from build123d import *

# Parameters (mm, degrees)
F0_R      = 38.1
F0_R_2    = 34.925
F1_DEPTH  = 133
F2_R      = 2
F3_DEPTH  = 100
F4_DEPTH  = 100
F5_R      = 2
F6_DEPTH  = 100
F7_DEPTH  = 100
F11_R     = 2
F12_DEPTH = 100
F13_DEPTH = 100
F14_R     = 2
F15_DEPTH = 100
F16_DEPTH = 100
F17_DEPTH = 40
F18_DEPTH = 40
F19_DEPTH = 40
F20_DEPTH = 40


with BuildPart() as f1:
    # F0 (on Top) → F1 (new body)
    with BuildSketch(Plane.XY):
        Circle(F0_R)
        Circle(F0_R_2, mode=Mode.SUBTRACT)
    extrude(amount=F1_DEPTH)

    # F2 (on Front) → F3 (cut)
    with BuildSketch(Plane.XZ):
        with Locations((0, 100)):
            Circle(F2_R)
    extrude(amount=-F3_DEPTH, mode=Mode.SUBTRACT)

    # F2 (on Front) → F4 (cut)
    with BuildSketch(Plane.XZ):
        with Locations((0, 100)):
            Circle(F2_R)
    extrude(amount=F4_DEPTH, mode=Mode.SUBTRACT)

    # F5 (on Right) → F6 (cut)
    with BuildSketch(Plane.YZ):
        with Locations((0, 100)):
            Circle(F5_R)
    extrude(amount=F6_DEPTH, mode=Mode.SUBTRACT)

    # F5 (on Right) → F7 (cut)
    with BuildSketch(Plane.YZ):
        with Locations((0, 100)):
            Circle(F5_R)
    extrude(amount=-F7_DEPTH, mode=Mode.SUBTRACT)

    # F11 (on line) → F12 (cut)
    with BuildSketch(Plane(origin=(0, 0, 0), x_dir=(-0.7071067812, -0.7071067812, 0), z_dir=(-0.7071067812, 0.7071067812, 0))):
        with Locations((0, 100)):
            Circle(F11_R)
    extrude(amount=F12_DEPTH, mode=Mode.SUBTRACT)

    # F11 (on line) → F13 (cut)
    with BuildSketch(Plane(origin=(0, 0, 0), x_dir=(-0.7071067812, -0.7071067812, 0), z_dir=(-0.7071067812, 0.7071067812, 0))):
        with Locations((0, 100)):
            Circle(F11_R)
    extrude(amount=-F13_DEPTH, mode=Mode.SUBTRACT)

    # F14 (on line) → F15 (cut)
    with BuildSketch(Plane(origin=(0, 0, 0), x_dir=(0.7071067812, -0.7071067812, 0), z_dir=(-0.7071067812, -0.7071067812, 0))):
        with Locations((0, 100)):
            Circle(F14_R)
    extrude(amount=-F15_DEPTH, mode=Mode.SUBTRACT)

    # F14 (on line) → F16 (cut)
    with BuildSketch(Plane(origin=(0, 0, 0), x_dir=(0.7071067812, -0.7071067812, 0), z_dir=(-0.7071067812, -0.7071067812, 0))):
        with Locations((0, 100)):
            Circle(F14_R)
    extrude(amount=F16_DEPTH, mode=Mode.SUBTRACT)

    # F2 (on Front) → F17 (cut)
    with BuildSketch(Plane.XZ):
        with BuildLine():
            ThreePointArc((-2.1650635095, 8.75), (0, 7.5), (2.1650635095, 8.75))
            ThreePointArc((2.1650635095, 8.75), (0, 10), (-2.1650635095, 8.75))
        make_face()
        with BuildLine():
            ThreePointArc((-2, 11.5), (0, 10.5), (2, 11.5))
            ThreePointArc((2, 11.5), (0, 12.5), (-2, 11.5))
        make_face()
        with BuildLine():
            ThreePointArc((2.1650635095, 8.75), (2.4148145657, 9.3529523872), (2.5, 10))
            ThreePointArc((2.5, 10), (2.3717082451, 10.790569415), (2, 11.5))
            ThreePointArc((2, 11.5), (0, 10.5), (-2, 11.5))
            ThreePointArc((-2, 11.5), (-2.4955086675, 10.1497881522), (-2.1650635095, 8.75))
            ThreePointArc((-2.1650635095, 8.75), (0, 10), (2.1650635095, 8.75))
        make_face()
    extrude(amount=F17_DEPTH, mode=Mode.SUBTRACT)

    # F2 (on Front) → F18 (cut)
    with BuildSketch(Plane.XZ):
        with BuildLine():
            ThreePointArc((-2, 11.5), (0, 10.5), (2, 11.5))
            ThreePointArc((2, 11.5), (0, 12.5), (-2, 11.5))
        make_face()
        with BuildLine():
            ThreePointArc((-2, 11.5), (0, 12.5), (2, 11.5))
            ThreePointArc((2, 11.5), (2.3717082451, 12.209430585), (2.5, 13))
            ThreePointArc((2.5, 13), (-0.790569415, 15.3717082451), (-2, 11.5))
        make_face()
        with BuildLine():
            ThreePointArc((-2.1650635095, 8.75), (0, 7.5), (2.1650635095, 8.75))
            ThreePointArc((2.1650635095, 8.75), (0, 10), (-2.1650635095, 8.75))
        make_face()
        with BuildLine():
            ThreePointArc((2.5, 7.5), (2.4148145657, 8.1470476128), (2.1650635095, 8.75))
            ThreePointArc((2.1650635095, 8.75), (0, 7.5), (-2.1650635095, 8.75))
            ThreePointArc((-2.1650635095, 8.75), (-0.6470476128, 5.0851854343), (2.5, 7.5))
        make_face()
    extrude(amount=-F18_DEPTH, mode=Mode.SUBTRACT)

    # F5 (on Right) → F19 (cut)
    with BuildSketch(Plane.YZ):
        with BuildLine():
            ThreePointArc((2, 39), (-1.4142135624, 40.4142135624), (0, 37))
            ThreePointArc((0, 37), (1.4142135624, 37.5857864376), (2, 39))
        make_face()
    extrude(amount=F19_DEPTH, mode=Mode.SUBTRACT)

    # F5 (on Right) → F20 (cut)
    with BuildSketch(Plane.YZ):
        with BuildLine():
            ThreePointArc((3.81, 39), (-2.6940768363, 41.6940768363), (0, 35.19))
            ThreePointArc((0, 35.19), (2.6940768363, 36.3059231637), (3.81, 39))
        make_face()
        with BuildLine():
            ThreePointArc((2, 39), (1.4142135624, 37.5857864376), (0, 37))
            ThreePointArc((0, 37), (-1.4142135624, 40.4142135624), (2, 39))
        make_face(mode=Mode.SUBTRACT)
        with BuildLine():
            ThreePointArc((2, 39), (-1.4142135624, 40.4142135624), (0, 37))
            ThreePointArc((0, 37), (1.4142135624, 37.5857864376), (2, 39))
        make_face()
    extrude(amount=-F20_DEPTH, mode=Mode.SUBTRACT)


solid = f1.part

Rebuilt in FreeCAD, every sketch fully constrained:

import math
import FreeCAD as App
import Part
import Sketcher
from FreeCAD import Vector
Q = App.Units.Quantity

doc = App.newDocument("Part")
params = doc.addObject("Spreadsheet::Sheet", "Params")
for row, (alias, value) in enumerate([
    ("sketch1_diameter", "76.2 mm"),
    ("sketch1_diameter2", "69.85 mm"),
    ("pad1_length", "133 mm"),
    ("sketch2_diameter", "4 mm"),
    ("pocket1_length", "100 mm"),
    ("sketch3_diameter", "4 mm"),
    ("pocket2_length", "100 mm"),
    ("sketch4_diameter", "4 mm"),
    ("pocket3_length", "100 mm"),
    ("sketch5_diameter", "4 mm"),
    ("pocket4_length", "100 mm"),
    ("sketch6_diameter", "4 mm"),
    ("pocket5_length", "100 mm"),
    ("sketch7_diameter", "4 mm"),
    ("pocket6_length", "100 mm"),
    ("sketch8_diameter", "4 mm"),
    ("pocket7_length", "100 mm"),
    ("sketch9_diameter", "4 mm"),
    ("pocket8_length", "100 mm"),
    ("sketch10_radius", "2.5 mm"),
    ("pocket9_length", "40 mm"),
    ("sketch11_radius", "2.5 mm"),
    ("pocket10_length", "40 mm"),
    ("sketch12_radius", "2 mm"),
    ("pocket11_length", "40 mm"),
    ("sketch13_radius", "3.81 mm"),
    ("pocket12_length", "40 mm"),
], start=1):
    params.set(f"A{row}", alias)
    params.set(f"B{row}", "=" + value)
    params.setAlias(f"B{row}", alias)

body = doc.addObject("PartDesign::Body", "Body")

sketch1 = doc.addObject("Sketcher::SketchObject", "Sketch")
body.addObject(sketch1)
sketch1.AttachmentSupport = (doc.XY_Plane, [""])
sketch1.MapMode = "FlatFace"
sketch1.addGeometry(Part.Circle(Vector(0, 0, 0), Vector(0, 0, 1), 38), False)
sketch1.addGeometry(Part.Circle(Vector(0, 0, 0), Vector(0, 0, 1), 35), False)
sketch1.addConstraint(Sketcher.Constraint("Coincident", 0, 3, -1, 1))
sketch1.addConstraint(Sketcher.Constraint("Coincident", 1, 3, -1, 1))
sketch1.addConstraint(Sketcher.Constraint("Diameter", 0, Q("76.2 mm")))
sketch1.addConstraint(Sketcher.Constraint("Diameter", 1, Q("69.85 mm")))
sketch1.setExpression("Constraints[2]", "Params.sketch1_diameter")
sketch1.setExpression("Constraints[3]", "Params.sketch1_diameter2")
pad1 = doc.addObject("PartDesign::Pad", "Pad")
body.addObject(pad1)
pad1.Profile = sketch1
pad1.setExpression("Length", "Params.pad1_length")

sketch2 = doc.addObject("Sketcher::SketchObject", "Sketch001")
body.addObject(sketch2)
sketch2.AttachmentSupport = (doc.XZ_Plane, [""])
sketch2.MapMode = "FlatFace"
sketch2.addGeometry(Part.Circle(Vector(0, 100, 0), Vector(0, 0, 1), 2), False)
sketch2.addConstraint(Sketcher.Constraint("PointOnObject", 0, 3, -2))
sketch2.addConstraint(Sketcher.Constraint("Diameter", 0, Q("4 mm")))
sketch2.addConstraint(Sketcher.Constraint("DistanceY", -1, 1, 0, 3, Q("100 mm")))
sketch2.setExpression("Constraints[1]", "Params.sketch2_diameter")
pocket1 = doc.addObject("PartDesign::Pocket", "Pocket")
body.addObject(pocket1)
pocket1.Profile = sketch2
pocket1.setExpression("Length", "Params.pocket1_length")

sketch3 = doc.addObject("Sketcher::SketchObject", "Sketch002")
body.addObject(sketch3)
sketch3.AttachmentSupport = (doc.XZ_Plane, [""])
sketch3.MapMode = "FlatFace"
sketch3.addGeometry(Part.Circle(Vector(0, 100, 0), Vector(0, 0, 1), 2), False)
sketch3.addConstraint(Sketcher.Constraint("PointOnObject", 0, 3, -2))
sketch3.addConstraint(Sketcher.Constraint("Diameter", 0, Q("4 mm")))
sketch3.addConstraint(Sketcher.Constraint("DistanceY", -1, 1, 0, 3, Q("100 mm")))
sketch3.setExpression("Constraints[1]", "Params.sketch3_diameter")
pocket2 = doc.addObject("PartDesign::Pocket", "Pocket001")
body.addObject(pocket2)
pocket2.Profile = sketch3
pocket2.setExpression("Length", "Params.pocket2_length")
pocket2.Reversed = True

sketch4 = doc.addObject("Sketcher::SketchObject", "Sketch003")
body.addObject(sketch4)
sketch4.AttachmentSupport = (doc.YZ_Plane, [""])
sketch4.MapMode = "FlatFace"
sketch4.addGeometry(Part.Circle(Vector(0, 100, 0), Vector(0, 0, 1), 2), False)
sketch4.addConstraint(Sketcher.Constraint("PointOnObject", 0, 3, -2))
sketch4.addConstraint(Sketcher.Constraint("Diameter", 0, Q("4 mm")))
sketch4.addConstraint(Sketcher.Constraint("DistanceY", -1, 1, 0, 3, Q("100 mm")))
sketch4.setExpression("Constraints[1]", "Params.sketch4_diameter")
pocket3 = doc.addObject("PartDesign::Pocket", "Pocket002")
body.addObject(pocket3)
pocket3.Profile = sketch4
pocket3.setExpression("Length", "Params.pocket3_length")
pocket3.Reversed = True

sketch5 = doc.addObject("Sketcher::SketchObject", "Sketch004")
body.addObject(sketch5)
sketch5.AttachmentSupport = (doc.YZ_Plane, [""])
sketch5.MapMode = "FlatFace"
sketch5.addGeometry(Part.Circle(Vector(0, 100, 0), Vector(0, 0, 1), 2), False)
sketch5.addConstraint(Sketcher.Constraint("PointOnObject", 0, 3, -2))
sketch5.addConstraint(Sketcher.Constraint("Diameter", 0, Q("4 mm")))
sketch5.addConstraint(Sketcher.Constraint("DistanceY", -1, 1, 0, 3, Q("100 mm")))
sketch5.setExpression("Constraints[1]", "Params.sketch5_diameter")
pocket4 = doc.addObject("PartDesign::Pocket", "Pocket003")
body.addObject(pocket4)
pocket4.Profile = sketch5
pocket4.setExpression("Length", "Params.pocket4_length")

sketch6 = doc.addObject("Sketcher::SketchObject", "Sketch005")
body.addObject(sketch6)
sketch6.Placement = App.Placement(Vector(0, 0, 0), App.Rotation(Vector(-0.707106781, -0.707106781, 0), Vector(0, 0, 0.999999999), Vector(-0.707106781, 0.707106781, 0), "ZXY"))
sketch6.addGeometry(Part.Circle(Vector(0, 100, 0), Vector(0, 0, 1), 2), False)
sketch6.addConstraint(Sketcher.Constraint("PointOnObject", 0, 3, -2))
sketch6.addConstraint(Sketcher.Constraint("Diameter", 0, Q("4 mm")))
sketch6.addConstraint(Sketcher.Constraint("DistanceY", -1, 1, 0, 3, Q("100 mm")))
sketch6.setExpression("Constraints[1]", "Params.sketch6_diameter")
pocket5 = doc.addObject("PartDesign::Pocket", "Pocket004")
body.addObject(pocket5)
pocket5.Profile = sketch6
pocket5.setExpression("Length", "Params.pocket5_length")
pocket5.Reversed = True

sketch7 = doc.addObject("Sketcher::SketchObject", "Sketch006")
body.addObject(sketch7)
sketch7.Placement = App.Placement(Vector(0, 0, 0), App.Rotation(Vector(-0.707106781, -0.707106781, 0), Vector(0, 0, 0.999999999), Vector(-0.707106781, 0.707106781, 0), "ZXY"))
sketch7.addGeometry(Part.Circle(Vector(0, 100, 0), Vector(0, 0, 1), 2), False)
sketch7.addConstraint(Sketcher.Constraint("PointOnObject", 0, 3, -2))
sketch7.addConstraint(Sketcher.Constraint("Diameter", 0, Q("4 mm")))
sketch7.addConstraint(Sketcher.Constraint("DistanceY", -1, 1, 0, 3, Q("100 mm")))
sketch7.setExpression("Constraints[1]", "Params.sketch7_diameter")
pocket6 = doc.addObject("PartDesign::Pocket", "Pocket005")
body.addObject(pocket6)
pocket6.Profile = sketch7
pocket6.setExpression("Length", "Params.pocket6_length")

sketch8 = doc.addObject("Sketcher::SketchObject", "Sketch007")
body.addObject(sketch8)
sketch8.Placement = App.Placement(Vector(0, 0, 0), App.Rotation(Vector(0.707106781, -0.707106781, 0), Vector(0, 0, 0.999999999), Vector(-0.707106781, -0.707106781, 0), "ZXY"))
sketch8.addGeometry(Part.Circle(Vector(0, 100, 0), Vector(0, 0, 1), 2), False)
sketch8.addConstraint(Sketcher.Constraint("PointOnObject", 0, 3, -2))
sketch8.addConstraint(Sketcher.Constraint("Diameter", 0, Q("4 mm")))
sketch8.addConstraint(Sketcher.Constraint("DistanceY", -1, 1, 0, 3, Q("100 mm")))
sketch8.setExpression("Constraints[1]", "Params.sketch8_diameter")
pocket7 = doc.addObject("PartDesign::Pocket", "Pocket006")
body.addObject(pocket7)
pocket7.Profile = sketch8
pocket7.setExpression("Length", "Params.pocket7_length")

sketch9 = doc.addObject("Sketcher::SketchObject", "Sketch008")
body.addObject(sketch9)
sketch9.Placement = App.Placement(Vector(0, 0, 0), App.Rotation(Vector(0.707106781, -0.707106781, 0), Vector(0, 0, 0.999999999), Vector(-0.707106781, -0.707106781, 0), "ZXY"))
sketch9.addGeometry(Part.Circle(Vector(0, 100, 0), Vector(0, 0, 1), 2), False)
sketch9.addConstraint(Sketcher.Constraint("PointOnObject", 0, 3, -2))
sketch9.addConstraint(Sketcher.Constraint("Diameter", 0, Q("4 mm")))
sketch9.addConstraint(Sketcher.Constraint("DistanceY", -1, 1, 0, 3, Q("100 mm")))
sketch9.setExpression("Constraints[1]", "Params.sketch9_diameter")
pocket8 = doc.addObject("PartDesign::Pocket", "Pocket007")
body.addObject(pocket8)
pocket8.Profile = sketch9
pocket8.setExpression("Length", "Params.pocket8_length")
pocket8.Reversed = True

sketch10 = doc.addObject("Sketcher::SketchObject", "Sketch009")
body.addObject(sketch10)
sketch10.AttachmentSupport = (doc.XZ_Plane, [""])
sketch10.MapMode = "FlatFace"
sketch10.addGeometry(Part.ArcOfCircle(Part.Circle(Vector(0, 10, 0), Vector(0, 0, 1), 2.5), math.radians(143), math.radians(210)), False)
sketch10.addGeometry(Part.ArcOfCircle(Part.Circle(Vector(0, 10, 0), Vector(0, 0, 1), 2.5), math.radians(-150), math.radians(-30)), False)
sketch10.addGeometry(Part.ArcOfCircle(Part.Circle(Vector(0, 10, 0), Vector(0, 0, 1), 2.5), math.radians(-30), math.radians(0)), False)
sketch10.addGeometry(Part.ArcOfCircle(Part.Circle(Vector(0, 10, 0), Vector(0, 0, 1), 2.5), math.radians(0), math.radians(37)), False)
sketch10.addGeometry(Part.ArcOfCircle(Part.Circle(Vector(0, 10, 0), Vector(0, 0, 1), 2.5), math.radians(37), math.radians(143)), False)
sketch10.addConstraint(Sketcher.Constraint("Tangent", 0, 2, 1, 1))
sketch10.addConstraint(Sketcher.Constraint("Tangent", 1, 2, 2, 1))
sketch10.addConstraint(Sketcher.Constraint("Tangent", 2, 2, 3, 1))
sketch10.addConstraint(Sketcher.Constraint("Tangent", 3, 2, 4, 1))
sketch10.addConstraint(Sketcher.Constraint("Tangent", 4, 2, 0, 1))
sketch10.addConstraint(Sketcher.Constraint("Coincident", 2, 3, 0, 3))
sketch10.addConstraint(Sketcher.Constraint("Symmetric", 0, 2, 1, 2, -2))
sketch10.addConstraint(Sketcher.Constraint("Horizontal", 4, 3, 2, 2))
sketch10.addConstraint(Sketcher.Constraint("Horizontal", 3, 2, 4, 2))
sketch10.addConstraint(Sketcher.Constraint("Radius", 0, Q("2.5 mm")))
sketch10.addConstraint(Sketcher.Constraint("DistanceY", -1, 1, 0, 3, Q("10 mm")))
sketch10.addConstraint(Sketcher.Constraint("DistanceX", -1, 1, 3, 2, Q("2 mm")))
sketch10.addConstraint(Sketcher.Constraint("DistanceY", -1, 1, 0, 2, Q("8.75 mm")))
sketch10.setExpression("Constraints[9]", "Params.sketch10_radius")
pocket9 = doc.addObject("PartDesign::Pocket", "Pocket008")
body.addObject(pocket9)
pocket9.Profile = sketch10
pocket9.setExpression("Length", "Params.pocket9_length")
pocket9.Reversed = True

sketch11 = doc.addObject("Sketcher::SketchObject", "Sketch010")
body.addObject(sketch11)
sketch11.AttachmentSupport = (doc.XZ_Plane, [""])
sketch11.MapMode = "FlatFace"
sketch11.addGeometry(Part.ArcOfCircle(Part.Circle(Vector(0, 13, 0), Vector(0, 0, 1), 2.5), math.radians(-143), math.radians(-37)), False)
sketch11.addGeometry(Part.ArcOfCircle(Part.Circle(Vector(0, 13, 0), Vector(0, 0, 1), 2.5), math.radians(-37), math.radians(0)), False)
sketch11.addGeometry(Part.ArcOfCircle(Part.Circle(Vector(0, 13, 0), Vector(0, 0, 1), 2.5), math.radians(0), math.radians(217)), False)
sketch11.addGeometry(Part.ArcOfCircle(Part.Circle(Vector(0, 7.5, 0), Vector(0, 0, 1), 2.5), math.radians(30), math.radians(150)), False)
sketch11.addGeometry(Part.ArcOfCircle(Part.Circle(Vector(0, 7.5, 0), Vector(0, 0, 1), 2.5), math.radians(150), math.radians(360)), False)
sketch11.addGeometry(Part.ArcOfCircle(Part.Circle(Vector(0, 7.5, 0), Vector(0, 0, 1), 2.5), math.radians(0), math.radians(30)), False)
sketch11.addConstraint(Sketcher.Constraint("Tangent", 0, 2, 1, 1))
sketch11.addConstraint(Sketcher.Constraint("Tangent", 1, 2, 2, 1))
sketch11.addConstraint(Sketcher.Constraint("Tangent", 2, 2, 0, 1))
sketch11.addConstraint(Sketcher.Constraint("Tangent", 3, 2, 4, 1))
sketch11.addConstraint(Sketcher.Constraint("Tangent", 4, 2, 5, 1))
sketch11.addConstraint(Sketcher.Constraint("Tangent", 5, 2, 3, 1))
sketch11.addConstraint(Sketcher.Constraint("Equal", 2, 3))
sketch11.addConstraint(Sketcher.Constraint("Symmetric", 0, 2, 2, 2, -2))
sketch11.addConstraint(Sketcher.Constraint("Symmetric", 3, 2, 5, 2, -2))
sketch11.addConstraint(Sketcher.Constraint("Horizontal", 2, 3, 1, 2))
sketch11.addConstraint(Sketcher.Constraint("Horizontal", 5, 3, 4, 2))
sketch11.addConstraint(Sketcher.Constraint("Radius", 0, Q("2.5 mm")))
sketch11.addConstraint(Sketcher.Constraint("DistanceY", -1, 1, 0, 3, Q("13 mm")))
sketch11.addConstraint(Sketcher.Constraint("DistanceX", -1, 1, 0, 2, Q("2 mm")))
sketch11.addConstraint(Sketcher.Constraint("DistanceY", 3, 3, 0, 2, Q("4 mm")))
sketch11.addConstraint(Sketcher.Constraint("DistanceY", -1, 1, 3, 2, Q("8.75 mm")))
sketch11.setExpression("Constraints[11]", "Params.sketch11_radius")
pocket10 = doc.addObject("PartDesign::Pocket", "Pocket009")
body.addObject(pocket10)
pocket10.Profile = sketch11
pocket10.setExpression("Length", "Params.pocket10_length")

sketch12 = doc.addObject("Sketcher::SketchObject", "Sketch011")
body.addObject(sketch12)
sketch12.AttachmentSupport = (doc.YZ_Plane, [""])
sketch12.MapMode = "FlatFace"
sketch12.addGeometry(Part.ArcOfCircle(Part.Circle(Vector(0, 39, 0), Vector(0, 0, 1), 2), math.radians(0), math.radians(270)), False)
sketch12.addGeometry(Part.ArcOfCircle(Part.Circle(Vector(0, 39, 0), Vector(0, 0, 1), 2), math.radians(-90), math.radians(0)), False)
sketch12.addConstraint(Sketcher.Constraint("Tangent", 0, 1, 1, 2))
sketch12.addConstraint(Sketcher.Constraint("Coincident", 1, 1, 0, 2))
sketch12.addConstraint(Sketcher.Constraint("PointOnObject", 0, 3, -2))
sketch12.addConstraint(Sketcher.Constraint("PointOnObject", 1, 1, -2))
sketch12.addConstraint(Sketcher.Constraint("Horizontal", 1, 3, 0, 1))
sketch12.addConstraint(Sketcher.Constraint("Radius", 0, Q("2 mm")))
sketch12.addConstraint(Sketcher.Constraint("DistanceY", -1, 1, 0, 3, Q("39 mm")))
sketch12.setExpression("Constraints[5]", "Params.sketch12_radius")
pocket11 = doc.addObject("PartDesign::Pocket", "Pocket010")
body.addObject(pocket11)
pocket11.Profile = sketch12
pocket11.setExpression("Length", "Params.pocket11_length")
pocket11.Reversed = True

sketch13 = doc.addObject("Sketcher::SketchObject", "Sketch012")
body.addObject(sketch13)
sketch13.AttachmentSupport = (doc.YZ_Plane, [""])
sketch13.MapMode = "FlatFace"
sketch13.addGeometry(Part.ArcOfCircle(Part.Circle(Vector(0, 39, 0), Vector(0, 0, 1), 3.8), math.radians(0), math.radians(270)), False)
sketch13.addGeometry(Part.ArcOfCircle(Part.Circle(Vector(0, 39, 0), Vector(0, 0, 1), 3.8), math.radians(-90), math.radians(0)), False)
sketch13.addConstraint(Sketcher.Constraint("Tangent", 0, 1, 1, 2))
sketch13.addConstraint(Sketcher.Constraint("Coincident", 1, 1, 0, 2))
sketch13.addConstraint(Sketcher.Constraint("PointOnObject", 0, 3, -2))
sketch13.addConstraint(Sketcher.Constraint("PointOnObject", 1, 1, -2))
sketch13.addConstraint(Sketcher.Constraint("Horizontal", 1, 3, 0, 1))
sketch13.addConstraint(Sketcher.Constraint("Radius", 0, Q("3.81 mm")))
sketch13.addConstraint(Sketcher.Constraint("DistanceY", -1, 1, 0, 3, Q("39 mm")))
sketch13.setExpression("Constraints[5]", "Params.sketch13_radius")
pocket12 = doc.addObject("PartDesign::Pocket", "Pocket011")
body.addObject(pocket12)
pocket12.Profile = sketch13
pocket12.setExpression("Length", "Params.pocket12_length")

doc.recompute()
